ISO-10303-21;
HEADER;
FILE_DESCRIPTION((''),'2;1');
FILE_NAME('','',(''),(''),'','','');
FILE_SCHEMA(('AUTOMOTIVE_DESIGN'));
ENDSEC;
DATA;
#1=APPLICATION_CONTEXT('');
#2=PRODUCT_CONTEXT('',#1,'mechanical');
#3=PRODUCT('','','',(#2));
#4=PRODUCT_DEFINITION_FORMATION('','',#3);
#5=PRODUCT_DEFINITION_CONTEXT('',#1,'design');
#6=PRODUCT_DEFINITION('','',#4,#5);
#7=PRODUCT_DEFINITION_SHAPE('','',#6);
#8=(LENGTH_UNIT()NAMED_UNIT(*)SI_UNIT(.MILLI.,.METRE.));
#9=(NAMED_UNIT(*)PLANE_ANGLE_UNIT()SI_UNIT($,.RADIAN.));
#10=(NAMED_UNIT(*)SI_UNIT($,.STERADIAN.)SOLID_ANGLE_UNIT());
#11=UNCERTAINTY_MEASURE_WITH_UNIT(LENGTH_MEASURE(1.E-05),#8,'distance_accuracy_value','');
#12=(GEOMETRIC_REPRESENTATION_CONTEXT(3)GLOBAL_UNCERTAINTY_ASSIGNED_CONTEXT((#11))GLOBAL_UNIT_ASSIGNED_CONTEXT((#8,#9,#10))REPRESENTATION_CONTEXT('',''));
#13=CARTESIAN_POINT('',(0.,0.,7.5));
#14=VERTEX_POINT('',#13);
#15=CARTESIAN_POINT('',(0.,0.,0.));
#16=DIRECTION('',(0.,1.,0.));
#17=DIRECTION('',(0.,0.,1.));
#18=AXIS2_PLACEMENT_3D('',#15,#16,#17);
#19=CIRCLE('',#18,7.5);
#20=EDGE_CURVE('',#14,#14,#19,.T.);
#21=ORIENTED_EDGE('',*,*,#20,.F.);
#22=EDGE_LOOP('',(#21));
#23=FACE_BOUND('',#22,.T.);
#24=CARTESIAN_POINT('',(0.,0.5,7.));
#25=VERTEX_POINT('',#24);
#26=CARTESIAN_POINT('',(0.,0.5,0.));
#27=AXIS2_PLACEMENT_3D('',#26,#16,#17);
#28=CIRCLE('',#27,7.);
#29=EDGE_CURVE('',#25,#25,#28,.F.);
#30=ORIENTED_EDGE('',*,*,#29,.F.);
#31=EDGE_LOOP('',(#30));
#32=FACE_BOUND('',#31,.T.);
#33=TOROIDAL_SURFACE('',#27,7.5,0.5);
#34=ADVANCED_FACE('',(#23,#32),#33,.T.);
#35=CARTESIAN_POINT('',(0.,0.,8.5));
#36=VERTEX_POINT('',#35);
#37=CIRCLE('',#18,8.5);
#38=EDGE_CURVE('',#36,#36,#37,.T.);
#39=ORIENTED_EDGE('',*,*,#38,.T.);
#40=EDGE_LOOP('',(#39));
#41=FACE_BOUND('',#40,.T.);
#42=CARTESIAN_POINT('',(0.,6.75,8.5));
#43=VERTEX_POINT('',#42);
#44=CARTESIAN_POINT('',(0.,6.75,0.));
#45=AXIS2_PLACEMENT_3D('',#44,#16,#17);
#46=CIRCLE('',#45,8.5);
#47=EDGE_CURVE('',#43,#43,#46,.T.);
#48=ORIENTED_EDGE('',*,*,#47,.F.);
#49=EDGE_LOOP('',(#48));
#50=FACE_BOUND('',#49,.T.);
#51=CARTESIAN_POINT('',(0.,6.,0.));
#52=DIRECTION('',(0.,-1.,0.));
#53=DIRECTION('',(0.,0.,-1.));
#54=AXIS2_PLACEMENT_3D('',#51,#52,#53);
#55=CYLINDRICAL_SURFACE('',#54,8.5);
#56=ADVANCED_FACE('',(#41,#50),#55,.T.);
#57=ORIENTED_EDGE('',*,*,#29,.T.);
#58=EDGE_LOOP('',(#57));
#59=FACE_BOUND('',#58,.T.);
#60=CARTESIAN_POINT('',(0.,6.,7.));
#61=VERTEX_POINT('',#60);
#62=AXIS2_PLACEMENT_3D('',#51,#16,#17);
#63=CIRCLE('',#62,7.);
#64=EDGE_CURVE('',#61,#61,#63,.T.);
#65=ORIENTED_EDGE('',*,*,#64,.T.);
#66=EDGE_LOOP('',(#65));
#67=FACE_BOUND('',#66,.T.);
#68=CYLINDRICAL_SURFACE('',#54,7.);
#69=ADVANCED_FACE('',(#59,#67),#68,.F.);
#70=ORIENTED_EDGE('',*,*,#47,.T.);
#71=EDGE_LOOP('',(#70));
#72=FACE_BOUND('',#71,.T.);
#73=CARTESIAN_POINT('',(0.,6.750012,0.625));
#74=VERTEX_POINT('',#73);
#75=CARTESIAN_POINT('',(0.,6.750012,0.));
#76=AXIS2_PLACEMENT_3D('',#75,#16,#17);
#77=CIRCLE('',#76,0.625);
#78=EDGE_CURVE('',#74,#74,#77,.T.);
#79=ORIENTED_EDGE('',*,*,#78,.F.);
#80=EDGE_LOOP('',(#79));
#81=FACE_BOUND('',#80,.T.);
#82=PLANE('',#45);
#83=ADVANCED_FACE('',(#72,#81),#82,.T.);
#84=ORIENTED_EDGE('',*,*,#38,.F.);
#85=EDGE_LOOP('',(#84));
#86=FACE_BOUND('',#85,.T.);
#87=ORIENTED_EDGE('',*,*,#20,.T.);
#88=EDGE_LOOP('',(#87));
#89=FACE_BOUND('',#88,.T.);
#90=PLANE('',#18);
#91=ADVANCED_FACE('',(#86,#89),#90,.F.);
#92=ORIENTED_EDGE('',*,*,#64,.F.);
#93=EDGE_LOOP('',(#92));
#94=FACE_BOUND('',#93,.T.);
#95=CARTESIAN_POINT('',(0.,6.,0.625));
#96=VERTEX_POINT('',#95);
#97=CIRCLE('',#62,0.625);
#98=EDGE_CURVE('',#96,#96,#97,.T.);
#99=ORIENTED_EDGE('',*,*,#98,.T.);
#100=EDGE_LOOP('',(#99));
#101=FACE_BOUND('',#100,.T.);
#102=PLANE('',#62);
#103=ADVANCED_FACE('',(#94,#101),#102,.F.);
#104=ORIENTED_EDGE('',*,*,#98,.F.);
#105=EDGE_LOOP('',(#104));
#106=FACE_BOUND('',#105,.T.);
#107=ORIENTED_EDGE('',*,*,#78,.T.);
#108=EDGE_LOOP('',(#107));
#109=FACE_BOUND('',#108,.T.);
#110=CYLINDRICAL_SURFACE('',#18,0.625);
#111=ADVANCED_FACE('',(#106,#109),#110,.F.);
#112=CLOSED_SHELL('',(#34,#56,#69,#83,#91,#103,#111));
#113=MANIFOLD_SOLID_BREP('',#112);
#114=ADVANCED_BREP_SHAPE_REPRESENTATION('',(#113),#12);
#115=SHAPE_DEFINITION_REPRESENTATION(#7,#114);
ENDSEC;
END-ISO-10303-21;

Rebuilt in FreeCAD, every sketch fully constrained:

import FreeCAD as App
import Part
import Sketcher


def edges_at(feature, points):
    """Names of the edges that pass closest to the given points."""
    edges = feature.Shape.Edges
    near = lambda p: min(range(len(edges)), key=lambda i: edges[i].distToShape(Part.Vertex(*p))[0])
    return sorted({f"Edge{near(p) + 1}" for p in points})

doc = App.newDocument("Part")
body = doc.addObject("PartDesign::Body", "Body")

# Sketch on XZ plane
sketch1 = doc.addObject("Sketcher::SketchObject", "Sketch")
body.addObject(sketch1)
sketch1.AttachmentSupport = (doc.XZ_Plane, [""])
sketch1.MapMode = "FlatFace"
sketch1.addGeometry(Part.Circle(App.Vector(0, 0, 0), App.Vector(0, 0, 1), 8.5), False)
sketch1.addGeometry(Part.Circle(App.Vector(0, 0, 0), App.Vector(0, 0, 1), 7), False)
sketch1.addConstraint(Sketcher.Constraint("Coincident", 0, 3, -1, 1))
sketch1.addConstraint(Sketcher.Constraint("Coincident", 1, 3, -1, 1))
sketch1.addConstraint(Sketcher.Constraint("Diameter", 0, 17.0))
sketch1.addConstraint(Sketcher.Constraint("Diameter", 1, 14.0))
pad1 = doc.addObject("PartDesign::Pad", "Pad")
body.addObject(pad1)
pad1.Profile = sketch1
pad1.Length = 6
pad1.Reversed = True

# Sketch on XZ plane
sketch2 = doc.addObject("Sketcher::SketchObject", "Sketch001")
body.addObject(sketch2)
sketch2.AttachmentSupport = (doc.XZ_Plane, [""])
sketch2.MapMode = "FlatFace"
sketch2.AttachmentOffset = App.Placement(App.Vector(0, 0, -6), App.Rotation())
sketch2.addGeometry(Part.Circle(App.Vector(0, 0, 0), App.Vector(0, 0, 1), 8.5), False)
sketch2.addConstraint(Sketcher.Constraint("Coincident", 0, 3, -1, 1))
sketch2.addConstraint(Sketcher.Constraint("Diameter", 0, 17.0))
pad2 = doc.addObject("PartDesign::Pad", "Pad001")
body.addObject(pad2)
pad2.Profile = sketch2
pad2.Length = 0.75
pad2.Reversed = True

# Sketch on XZ plane
sketch3 = doc.addObject("Sketcher::SketchObject", "Sketch002")
body.addObject(sketch3)
sketch3.AttachmentSupport = (doc.XZ_Plane, [""])
sketch3.MapMode = "FlatFace"
sketch3.AttachmentOffset = App.Placement(App.Vector(0, 0, -6.75), App.Rotation())
sketch3.addGeometry(Part.Circle(App.Vector(0, 0, 0), App.Vector(0, 0, 1), 0.625), False)
sketch3.addConstraint(Sketcher.Constraint("Coincident", 0, 3, -1, 1))
sketch3.addConstraint(Sketcher.Constraint("Diameter", 0, 1.25))
pocket1 = doc.addObject("PartDesign::Pocket", "Pocket")
body.addObject(pocket1)
pocket1.Profile = sketch3
pocket1.Type = "ThroughAll"
pocket1.Midplane = True
doc.recompute()

fillet = doc.addObject("PartDesign::Fillet", "Fillet")
body.addObject(fillet)
fillet.Base = (pocket1, edges_at(pocket1, [(0, 0, -7)]))
fillet.Radius = 0.5

doc.recompute()
